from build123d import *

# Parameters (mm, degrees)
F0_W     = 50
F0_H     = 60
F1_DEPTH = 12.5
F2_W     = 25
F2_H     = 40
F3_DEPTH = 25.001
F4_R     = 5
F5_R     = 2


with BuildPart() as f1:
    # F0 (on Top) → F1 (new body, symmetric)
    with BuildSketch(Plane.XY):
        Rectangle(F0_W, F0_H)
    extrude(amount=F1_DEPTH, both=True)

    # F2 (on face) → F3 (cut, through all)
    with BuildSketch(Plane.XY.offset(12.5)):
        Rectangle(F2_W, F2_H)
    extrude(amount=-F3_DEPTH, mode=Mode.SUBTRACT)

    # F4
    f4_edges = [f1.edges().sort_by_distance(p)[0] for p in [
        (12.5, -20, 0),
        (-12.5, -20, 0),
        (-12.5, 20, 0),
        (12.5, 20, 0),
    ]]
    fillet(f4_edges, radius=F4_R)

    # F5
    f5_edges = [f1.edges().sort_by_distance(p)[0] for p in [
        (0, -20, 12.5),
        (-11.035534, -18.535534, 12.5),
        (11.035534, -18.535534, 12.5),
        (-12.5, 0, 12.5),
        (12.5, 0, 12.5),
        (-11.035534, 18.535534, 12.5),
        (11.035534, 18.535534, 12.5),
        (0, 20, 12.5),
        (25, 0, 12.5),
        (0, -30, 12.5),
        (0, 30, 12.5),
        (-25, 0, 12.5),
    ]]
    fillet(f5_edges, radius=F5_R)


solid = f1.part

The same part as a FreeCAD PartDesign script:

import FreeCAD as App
import Part
import Sketcher


def edges_at(feature, points):
    """Names of the edges that pass closest to the given points."""
    edges = feature.Shape.Edges
    near = lambda p: min(range(len(edges)), key=lambda i: edges[i].distToShape(Part.Vertex(*p))[0])
    return sorted({f"Edge{near(p) + 1}" for p in points})

doc = App.newDocument("Part")
body = doc.addObject("PartDesign::Body", "Body")

# Sketch on XY plane
sketch1 = body.newObject("Sketcher::SketchObject", "Sketch")
sketch1.AttachmentSupport = (doc.getObject("XY_Plane"), [""])
sketch1.MapMode = "FlatFace"
sketch1.addGeometry([
    Part.LineSegment(App.Vector(-25, 30, 0), App.Vector(-25, -30, 0)),
    Part.LineSegment(App.Vector(-25, -30, 0), App.Vector(25, -30, 0)),
    Part.LineSegment(App.Vector(25, -30, 0), App.Vector(25, 30, 0)),
    Part.LineSegment(App.Vector(25, 30, 0), App.Vector(-25, 30, 0)),
], False)
sketch1.addConstraint([
    Sketcher.Constraint("Coincident", 0, 2, 1, 1),
    Sketcher.Constraint("Coincident", 1, 2, 2, 1),
    Sketcher.Constraint("Coincident", 2, 2, 3, 1),
    Sketcher.Constraint("Coincident", 3, 2, 0, 1),
    Sketcher.Constraint("Vertical", 0),
    Sketcher.Constraint("Horizontal", 1),
    Sketcher.Constraint("Vertical", 2),
    Sketcher.Constraint("Horizontal", 3),
    Sketcher.Constraint("Symmetric", 0, 2, 2, 2, -1, 1),
    Sketcher.Constraint("DistanceX", 1, 1, 1, 2, 50.0),
    Sketcher.Constraint("DistanceY", 0, 2, 0, 1, 60.0),
])
pad1 = body.newObject("PartDesign::Pad", "Pad")
pad1.Profile = sketch1
pad1.Length = 25
pad1.Midplane = True

# Sketch on XY plane
sketch2 = body.newObject("Sketcher::SketchObject", "Sketch001")
sketch2.AttachmentSupport = (doc.getObject("XY_Plane"), [""])
sketch2.MapMode = "FlatFace"
sketch2.AttachmentOffset = App.Placement(App.Vector(0, 0, 12.5), App.Rotation())
sketch2.addGeometry([
    Part.LineSegment(App.Vector(-12, 20, 0), App.Vector(-12, -20, 0)),
    Part.LineSegment(App.Vector(-12, -20, 0), App.Vector(12, -20, 0)),
    Part.LineSegment(App.Vector(12, -20, 0), App.Vector(12, 20, 0)),
    Part.LineSegment(App.Vector(12, 20, 0), App.Vector(-12, 20, 0)),
], False)
sketch2.addConstraint([
    Sketcher.Constraint("Coincident", 0, 2, 1, 1),
    Sketcher.Constraint("Coincident", 1, 2, 2, 1),
    Sketcher.Constraint("Coincident", 2, 2, 3, 1),
    Sketcher.Constraint("Coincident", 3, 2, 0, 1),
    Sketcher.Constraint("Vertical", 0),
    Sketcher.Constraint("Horizontal", 1),
    Sketcher.Constraint("Vertical", 2),
    Sketcher.Constraint("Horizontal", 3),
    Sketcher.Constraint("Symmetric", 0, 2, 2, 2, -1, 1),
    Sketcher.Constraint("DistanceX", 1, 1, 1, 2, 25.0),
    Sketcher.Constraint("DistanceY", 0, 2, 0, 1, 40.0),
])
pocket1 = body.newObject("PartDesign::Pocket", "Pocket")
pocket1.Profile = sketch2
pocket1.Type = "ThroughAll"
doc.recompute()

fillet = body.newObject("PartDesign::Fillet", "Fillet")
fillet.Base = (pocket1, edges_at(pocket1, [
    (12.5, -20, 0),
    (-12.5, -20, 0),
    (-12.5, 20, 0),
    (12.5, 20, 0),
]))
fillet.Radius = 5
doc.recompute()

fillet2 = body.newObject("PartDesign::Fillet", "Fillet001")
fillet2.Base = (fillet, edges_at(fillet, [
    (0, -20, 12.5),
    (-11.036, -18.536, 12.5),
    (11.036, -18.536, 12.5),
    (-12.5, 0, 12.5),
    (12.5, 0, 12.5),
    (-11.036, 18.536, 12.5),
    (11.036, 18.536, 12.5),
    (0, 20, 12.5),
    (25, 0, 12.5),
    (0, -30, 12.5),
    (0, 30, 12.5),
    (-25, 0, 12.5),
]))
fillet2.Radius = 2

doc.recompute()
